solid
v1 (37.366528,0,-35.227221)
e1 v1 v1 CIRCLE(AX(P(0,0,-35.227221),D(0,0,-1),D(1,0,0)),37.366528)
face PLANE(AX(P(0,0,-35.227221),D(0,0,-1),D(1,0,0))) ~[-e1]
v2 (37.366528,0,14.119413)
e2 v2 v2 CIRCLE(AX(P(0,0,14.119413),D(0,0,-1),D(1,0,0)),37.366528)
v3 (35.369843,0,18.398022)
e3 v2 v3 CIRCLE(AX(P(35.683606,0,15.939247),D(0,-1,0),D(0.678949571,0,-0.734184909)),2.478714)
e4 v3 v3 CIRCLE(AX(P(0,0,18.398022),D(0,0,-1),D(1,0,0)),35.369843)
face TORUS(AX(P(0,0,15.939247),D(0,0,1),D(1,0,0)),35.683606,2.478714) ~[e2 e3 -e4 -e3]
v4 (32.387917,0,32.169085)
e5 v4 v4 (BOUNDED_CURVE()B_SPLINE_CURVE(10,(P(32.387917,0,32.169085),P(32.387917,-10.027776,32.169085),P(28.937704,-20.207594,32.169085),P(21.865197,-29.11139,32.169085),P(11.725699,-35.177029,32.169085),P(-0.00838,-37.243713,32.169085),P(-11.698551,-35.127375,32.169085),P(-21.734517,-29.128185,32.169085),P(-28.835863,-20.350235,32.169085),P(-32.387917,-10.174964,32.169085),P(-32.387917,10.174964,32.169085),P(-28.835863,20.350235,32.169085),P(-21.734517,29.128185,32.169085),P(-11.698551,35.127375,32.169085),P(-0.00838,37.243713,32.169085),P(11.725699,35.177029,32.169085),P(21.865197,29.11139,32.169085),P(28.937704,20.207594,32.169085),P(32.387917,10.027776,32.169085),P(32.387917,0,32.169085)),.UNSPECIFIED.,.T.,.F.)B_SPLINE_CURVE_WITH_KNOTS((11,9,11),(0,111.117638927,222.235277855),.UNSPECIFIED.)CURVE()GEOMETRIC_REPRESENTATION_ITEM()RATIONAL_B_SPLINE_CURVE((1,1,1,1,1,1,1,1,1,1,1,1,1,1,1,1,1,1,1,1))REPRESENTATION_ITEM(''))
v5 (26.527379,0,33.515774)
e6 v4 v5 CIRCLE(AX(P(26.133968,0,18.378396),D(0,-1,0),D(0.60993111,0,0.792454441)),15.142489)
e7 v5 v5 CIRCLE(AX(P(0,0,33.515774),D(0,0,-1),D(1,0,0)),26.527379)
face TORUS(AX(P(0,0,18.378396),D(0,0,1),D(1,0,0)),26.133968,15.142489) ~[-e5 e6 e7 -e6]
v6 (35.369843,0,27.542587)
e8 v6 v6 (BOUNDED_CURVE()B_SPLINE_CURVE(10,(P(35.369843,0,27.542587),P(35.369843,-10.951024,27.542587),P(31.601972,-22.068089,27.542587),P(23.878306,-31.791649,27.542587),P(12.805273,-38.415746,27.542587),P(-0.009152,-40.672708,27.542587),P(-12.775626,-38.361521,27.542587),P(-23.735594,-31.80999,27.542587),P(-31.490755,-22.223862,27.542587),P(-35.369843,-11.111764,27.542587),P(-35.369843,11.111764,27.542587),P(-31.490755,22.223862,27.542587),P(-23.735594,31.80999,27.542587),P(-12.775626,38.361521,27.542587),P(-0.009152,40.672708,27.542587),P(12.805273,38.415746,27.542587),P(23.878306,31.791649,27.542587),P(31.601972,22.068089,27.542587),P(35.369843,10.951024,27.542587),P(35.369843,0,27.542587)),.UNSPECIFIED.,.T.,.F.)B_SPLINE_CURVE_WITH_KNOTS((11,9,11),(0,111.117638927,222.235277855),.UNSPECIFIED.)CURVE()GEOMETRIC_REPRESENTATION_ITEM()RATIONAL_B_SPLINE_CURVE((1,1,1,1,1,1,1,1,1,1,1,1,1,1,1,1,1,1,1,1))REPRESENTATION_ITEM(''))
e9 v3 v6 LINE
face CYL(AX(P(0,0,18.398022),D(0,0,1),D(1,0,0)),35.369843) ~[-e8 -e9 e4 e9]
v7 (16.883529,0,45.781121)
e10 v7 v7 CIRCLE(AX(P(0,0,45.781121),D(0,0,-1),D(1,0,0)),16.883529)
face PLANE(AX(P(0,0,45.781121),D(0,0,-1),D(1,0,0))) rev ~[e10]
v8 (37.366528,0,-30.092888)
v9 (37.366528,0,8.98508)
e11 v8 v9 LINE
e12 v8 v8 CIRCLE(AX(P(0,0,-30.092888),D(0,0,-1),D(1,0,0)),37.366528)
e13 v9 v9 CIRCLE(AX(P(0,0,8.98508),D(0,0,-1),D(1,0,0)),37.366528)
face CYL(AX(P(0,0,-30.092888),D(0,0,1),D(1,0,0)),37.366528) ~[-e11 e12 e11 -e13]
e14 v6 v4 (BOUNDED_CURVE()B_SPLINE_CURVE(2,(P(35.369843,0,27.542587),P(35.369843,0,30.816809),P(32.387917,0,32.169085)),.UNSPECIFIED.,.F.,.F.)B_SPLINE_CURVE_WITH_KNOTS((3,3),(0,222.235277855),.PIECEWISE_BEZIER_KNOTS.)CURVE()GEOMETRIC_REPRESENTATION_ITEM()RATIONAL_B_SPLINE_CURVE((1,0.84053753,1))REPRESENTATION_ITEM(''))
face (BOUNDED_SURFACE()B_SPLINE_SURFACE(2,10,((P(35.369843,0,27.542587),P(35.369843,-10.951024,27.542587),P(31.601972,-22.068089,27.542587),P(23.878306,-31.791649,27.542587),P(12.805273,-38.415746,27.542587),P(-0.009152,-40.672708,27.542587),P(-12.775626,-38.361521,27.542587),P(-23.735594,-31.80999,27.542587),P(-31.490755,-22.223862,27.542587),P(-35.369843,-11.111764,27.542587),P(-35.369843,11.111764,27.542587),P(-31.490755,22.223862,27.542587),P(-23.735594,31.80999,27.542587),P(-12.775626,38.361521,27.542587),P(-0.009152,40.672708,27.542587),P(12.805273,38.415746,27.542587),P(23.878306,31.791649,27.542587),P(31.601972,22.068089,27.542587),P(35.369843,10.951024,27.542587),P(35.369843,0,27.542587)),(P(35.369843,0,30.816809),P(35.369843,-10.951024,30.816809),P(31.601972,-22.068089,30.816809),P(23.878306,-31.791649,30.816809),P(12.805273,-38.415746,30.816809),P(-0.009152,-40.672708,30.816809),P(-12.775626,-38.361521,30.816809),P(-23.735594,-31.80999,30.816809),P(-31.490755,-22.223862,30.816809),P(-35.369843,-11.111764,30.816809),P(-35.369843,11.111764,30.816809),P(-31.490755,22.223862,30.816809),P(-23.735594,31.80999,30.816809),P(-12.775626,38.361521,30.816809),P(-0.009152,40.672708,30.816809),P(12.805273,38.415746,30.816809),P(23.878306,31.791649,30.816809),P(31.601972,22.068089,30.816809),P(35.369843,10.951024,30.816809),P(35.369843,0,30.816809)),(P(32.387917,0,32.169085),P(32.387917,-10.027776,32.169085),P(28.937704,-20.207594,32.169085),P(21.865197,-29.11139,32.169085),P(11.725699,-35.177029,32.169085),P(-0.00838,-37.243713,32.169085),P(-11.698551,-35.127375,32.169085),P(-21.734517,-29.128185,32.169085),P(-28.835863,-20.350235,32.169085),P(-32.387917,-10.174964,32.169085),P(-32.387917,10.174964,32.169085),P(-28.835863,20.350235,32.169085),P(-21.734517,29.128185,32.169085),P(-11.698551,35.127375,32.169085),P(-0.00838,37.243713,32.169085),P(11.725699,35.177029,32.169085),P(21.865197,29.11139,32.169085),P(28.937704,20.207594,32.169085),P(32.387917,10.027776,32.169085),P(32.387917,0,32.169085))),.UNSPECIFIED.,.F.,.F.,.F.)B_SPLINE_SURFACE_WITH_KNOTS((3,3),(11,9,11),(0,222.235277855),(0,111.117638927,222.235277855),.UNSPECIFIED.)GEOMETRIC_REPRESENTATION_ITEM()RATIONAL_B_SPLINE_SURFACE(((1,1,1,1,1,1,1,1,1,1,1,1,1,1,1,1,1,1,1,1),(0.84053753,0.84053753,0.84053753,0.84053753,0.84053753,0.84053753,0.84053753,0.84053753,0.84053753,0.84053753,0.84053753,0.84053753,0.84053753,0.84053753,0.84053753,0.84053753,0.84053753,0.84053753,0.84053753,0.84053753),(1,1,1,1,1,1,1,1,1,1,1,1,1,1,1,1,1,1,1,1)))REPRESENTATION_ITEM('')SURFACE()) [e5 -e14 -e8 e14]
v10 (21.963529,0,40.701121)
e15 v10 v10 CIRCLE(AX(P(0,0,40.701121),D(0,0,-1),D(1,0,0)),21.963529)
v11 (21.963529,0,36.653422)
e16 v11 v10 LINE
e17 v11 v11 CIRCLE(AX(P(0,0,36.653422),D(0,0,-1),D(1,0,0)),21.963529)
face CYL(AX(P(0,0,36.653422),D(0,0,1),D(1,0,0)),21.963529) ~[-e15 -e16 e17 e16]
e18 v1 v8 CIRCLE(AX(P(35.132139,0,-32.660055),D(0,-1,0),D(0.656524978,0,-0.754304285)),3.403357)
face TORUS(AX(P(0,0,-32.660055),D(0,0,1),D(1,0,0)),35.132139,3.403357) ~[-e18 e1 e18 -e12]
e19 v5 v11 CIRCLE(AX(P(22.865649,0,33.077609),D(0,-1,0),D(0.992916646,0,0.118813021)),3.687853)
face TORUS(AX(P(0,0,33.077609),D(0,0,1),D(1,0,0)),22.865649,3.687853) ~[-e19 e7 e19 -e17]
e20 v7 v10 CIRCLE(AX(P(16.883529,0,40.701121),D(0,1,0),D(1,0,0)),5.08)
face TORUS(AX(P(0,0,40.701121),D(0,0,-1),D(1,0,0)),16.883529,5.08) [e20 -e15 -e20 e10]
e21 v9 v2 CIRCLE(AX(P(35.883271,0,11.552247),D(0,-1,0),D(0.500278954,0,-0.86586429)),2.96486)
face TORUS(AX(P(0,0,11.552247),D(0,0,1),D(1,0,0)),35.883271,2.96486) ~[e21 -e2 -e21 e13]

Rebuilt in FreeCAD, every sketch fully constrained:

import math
import FreeCAD as App
import Part
import Sketcher

V = App.Vector
Q = App.Units.Quantity


def edges_at(feature, points):
    """Names of the edges that pass closest to the given points."""
    edges = feature.Shape.Edges
    near = lambda p: min(range(len(edges)), key=lambda i: edges[i].distToShape(Part.Vertex(*p))[0])
    return sorted({f"Edge{near(p) + 1}" for p in points})

doc = App.newDocument("Part")
body = doc.addObject("PartDesign::Body", "Body")

sketch1 = body.newObject("Sketcher::SketchObject", "Sketch")
sketch1.AttachmentSupport = (doc.getObject("XZ_Plane"), [""])
sketch1.MapMode = "FlatFace"
sketch1.addGeometry([
    Part.LineSegment(V(22, 45.8, 0), V(0, 45.8, 0)),
    Part.LineSegment(V(0, 45.8, 0), V(0, -35.2, 0)),
    Part.LineSegment(V(0, -35.2, 0), V(37.4, -35.2, 0)),
    Part.ArcOfCircle(Part.Circle(V(35.1, -32.7, 0), V(0, 0, 1), 3.4), math.radians(-49), math.radians(49)),
    Part.LineSegment(V(37.4, -30.1, 0), V(37.4, 9, 0)),
    Part.ArcOfCircle(Part.Circle(V(35.9, 11.6, 0), V(0, 0, 1), 3), math.radians(-60), math.radians(60)),
    Part.ArcOfCircle(Part.Circle(V(35.7, 15.9, 0), V(0, 0, 1), 2.5), math.radians(-47), math.radians(97)),
    Part.LineSegment(V(35.4, 18.4, 0), V(35.4, 30.4, 0)),
    Part.ArcOfCircle(Part.Circle(V(26.1, 18.4, 0), V(0, 0, 1), 15.1), math.radians(52), math.radians(89)),
    Part.ArcOfCircle(Part.Circle(V(22.9, 33.1, 0), V(0, 0, 1), 3.7), math.radians(7), math.radians(104)),
    Part.LineSegment(V(22, 36.7, 0), V(22, 45.8, 0)),
], False)
sketch1.addConstraint([
    Sketcher.Constraint("Coincident", 0, 2, 1, 1),
    Sketcher.Constraint("Coincident", 1, 2, 2, 1),
    Sketcher.Constraint("Coincident", 2, 2, 3, 1),
    Sketcher.Constraint("Coincident", 3, 2, 4, 1),
    Sketcher.Constraint("Coincident", 4, 2, 5, 1),
    Sketcher.Constraint("Coincident", 5, 2, 6, 1),
    Sketcher.Constraint("Coincident", 6, 2, 7, 1),
    Sketcher.Constraint("Coincident", 7, 2, 8, 1),
    Sketcher.Constraint("Coincident", 8, 2, 9, 1),
    Sketcher.Constraint("Coincident", 9, 2, 10, 1),
    Sketcher.Constraint("Coincident", 10, 2, 0, 1),
    Sketcher.Constraint("Horizontal", 0),
    Sketcher.Constraint("Vertical", 1),
    Sketcher.Constraint("Horizontal", 2),
    Sketcher.Constraint("Vertical", 4),
    Sketcher.Constraint("Vertical", 7),
    Sketcher.Constraint("Vertical", 10),
    Sketcher.Constraint("PointOnObject", 0, 2, -2),
    Sketcher.Constraint("Vertical", 2, 2, 3, 2),
    Sketcher.Constraint("Vertical", 4, 2, 5, 2),
    Sketcher.Constraint("Radius", 5, 2.96486),
    Sketcher.Constraint("Radius", 8, 15.142489),
    Sketcher.Constraint("DistanceY", 10, 1, 10, 2, 9.127699),
    Sketcher.Constraint("Radius", 3, 3.403357),
    Sketcher.Constraint("Radius", 6, 2.478714),
    Sketcher.Constraint("Radius", 9, 3.687853),
    Sketcher.Constraint("DistanceX", 0, 2, 0, 1, 21.963529),
    Sketcher.Constraint("DistanceX", 2, 1, 2, 2, 37.366528),
    Sketcher.Constraint("DistanceY", 1, 2, 1, 1, 81.008342),
    Sketcher.Constraint("DistanceY", 3, 3, 5, 3, 44.212301),
    Sketcher.Constraint("DistanceY", 5, 3, 6, 3, 4.387001),
    Sketcher.Constraint("DistanceY", 6, 2, 9, 2, 18.2554),
    Sketcher.Constraint("DistanceY", 4, 1, 4, 2, 39.077968),
    Sketcher.Constraint("DistanceY", 7, 1, 7, 2, 11.980107),
    Sketcher.Constraint("DistanceX", -1, 1, 3, 3, 35.132139),
    Sketcher.Constraint("DistanceX", -1, 1, 9, 3, 22.865649),
    Sketcher.Constraint("DistanceY", -1, 1, 9, 3, 33.077609),
    Sketcher.Constraint("DistanceX", -1, 1, 8, 2, 26.527379),
])
revolution = body.newObject("PartDesign::Revolution", "Revolution")
revolution.Profile = sketch1
revolution.ReferenceAxis = (sketch1, ["V_Axis"])
revolution.Angle = 360
doc.recompute()

fillet = body.newObject("PartDesign::Fillet", "Fillet")
fillet.Base = (revolution, edges_at(revolution, [(-21.964, 0, 45.781), (-35.37, 0, 30.378)]))
fillet.Radius = Q("0.2 in")

doc.recompute()
